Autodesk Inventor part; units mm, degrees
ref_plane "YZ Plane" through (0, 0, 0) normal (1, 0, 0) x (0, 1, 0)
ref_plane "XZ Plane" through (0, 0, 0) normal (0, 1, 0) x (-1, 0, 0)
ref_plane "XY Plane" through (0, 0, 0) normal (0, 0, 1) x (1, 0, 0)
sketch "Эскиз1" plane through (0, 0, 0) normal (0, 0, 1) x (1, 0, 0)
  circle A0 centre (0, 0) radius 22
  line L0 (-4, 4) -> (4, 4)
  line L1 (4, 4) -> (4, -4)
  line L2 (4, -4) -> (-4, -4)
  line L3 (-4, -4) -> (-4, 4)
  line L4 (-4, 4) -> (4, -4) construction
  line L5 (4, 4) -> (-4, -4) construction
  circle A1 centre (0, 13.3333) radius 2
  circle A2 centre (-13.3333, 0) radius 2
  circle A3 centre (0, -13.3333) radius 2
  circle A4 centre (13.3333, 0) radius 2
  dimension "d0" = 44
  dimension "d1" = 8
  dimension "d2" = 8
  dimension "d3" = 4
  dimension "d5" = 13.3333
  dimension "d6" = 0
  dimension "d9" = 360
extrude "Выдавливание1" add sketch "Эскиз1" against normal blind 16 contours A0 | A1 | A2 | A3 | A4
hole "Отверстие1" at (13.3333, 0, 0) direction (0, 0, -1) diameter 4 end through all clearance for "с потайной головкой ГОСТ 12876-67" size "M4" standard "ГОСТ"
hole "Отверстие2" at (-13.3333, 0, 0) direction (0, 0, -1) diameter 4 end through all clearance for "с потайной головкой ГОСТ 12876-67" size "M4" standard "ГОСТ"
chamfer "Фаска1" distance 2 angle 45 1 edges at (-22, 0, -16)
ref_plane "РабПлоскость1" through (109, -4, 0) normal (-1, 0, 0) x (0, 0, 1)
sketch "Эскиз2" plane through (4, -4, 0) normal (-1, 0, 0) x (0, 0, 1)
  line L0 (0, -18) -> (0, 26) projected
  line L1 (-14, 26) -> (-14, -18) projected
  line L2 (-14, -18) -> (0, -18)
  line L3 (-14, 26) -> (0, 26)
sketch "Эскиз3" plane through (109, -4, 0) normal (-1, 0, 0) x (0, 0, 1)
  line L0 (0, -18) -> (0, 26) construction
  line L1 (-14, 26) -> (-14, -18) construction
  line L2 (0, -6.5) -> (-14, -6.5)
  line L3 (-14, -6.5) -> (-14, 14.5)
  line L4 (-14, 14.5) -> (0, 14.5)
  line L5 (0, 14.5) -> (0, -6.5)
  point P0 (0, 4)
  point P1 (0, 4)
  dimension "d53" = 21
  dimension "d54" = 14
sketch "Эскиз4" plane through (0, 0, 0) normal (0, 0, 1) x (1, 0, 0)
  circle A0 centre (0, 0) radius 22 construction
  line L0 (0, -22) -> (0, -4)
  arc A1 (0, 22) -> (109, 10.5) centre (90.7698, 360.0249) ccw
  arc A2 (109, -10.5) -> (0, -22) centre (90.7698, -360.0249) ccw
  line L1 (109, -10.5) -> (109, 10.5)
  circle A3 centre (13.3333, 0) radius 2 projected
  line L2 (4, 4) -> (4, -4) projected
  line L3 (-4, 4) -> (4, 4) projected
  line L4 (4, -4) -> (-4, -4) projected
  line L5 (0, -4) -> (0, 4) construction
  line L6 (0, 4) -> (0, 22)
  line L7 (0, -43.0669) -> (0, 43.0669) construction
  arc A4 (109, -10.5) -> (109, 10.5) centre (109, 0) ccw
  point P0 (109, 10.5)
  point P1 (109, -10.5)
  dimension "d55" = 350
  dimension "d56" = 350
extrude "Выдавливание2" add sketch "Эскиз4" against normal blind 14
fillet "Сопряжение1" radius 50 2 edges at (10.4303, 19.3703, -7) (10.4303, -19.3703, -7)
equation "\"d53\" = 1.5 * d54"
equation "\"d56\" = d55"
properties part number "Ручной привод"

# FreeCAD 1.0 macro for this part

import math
import FreeCAD as App
import Part
import Sketcher
from FreeCAD import Vector


def edges_at(feature, points):
    """Names of the edges that pass closest to the given points."""
    edges = feature.Shape.Edges
    near = lambda p: min(range(len(edges)), key=lambda i: edges[i].distToShape(Part.Vertex(*p))[0])
    return sorted({f"Edge{near(p) + 1}" for p in points})

doc = App.newDocument("Part")
body = doc.addObject("PartDesign::Body", "Body")

# Sketch on XY plane
sketch1 = doc.addObject("Sketcher::SketchObject", "Sketch")
body.addObject(sketch1)
sketch1.AttachmentSupport = (doc.XY_Plane, [""])
sketch1.MapMode = "FlatFace"
sketch1.addGeometry([
    Part.Circle(Vector(0, 0, 0), Vector(0, 0, 1), 22),  # 0
    Part.LineSegment(Vector(-4, -4, 0), Vector(-4, 4, 0)),  # 1
    Part.LineSegment(Vector(-4, 4, 0), Vector(4, 4, 0)),  # 2
    Part.LineSegment(Vector(4, 4, 0), Vector(4, -4, 0)),  # 3
    Part.LineSegment(Vector(4, -4, 0), Vector(-4, -4, 0)),  # 4
], False)
sketch1.addConstraint([
    Sketcher.Constraint("Coincident", 1, 2, 2, 1),
    Sketcher.Constraint("Coincident", 2, 2, 3, 1),
    Sketcher.Constraint("Coincident", 3, 2, 4, 1),
    Sketcher.Constraint("Coincident", 4, 2, 1, 1),
    Sketcher.Constraint("Vertical", 1),
    Sketcher.Constraint("Horizontal", 2),
    Sketcher.Constraint("Vertical", 3),
    Sketcher.Constraint("Horizontal", 4),
    Sketcher.Constraint("Coincident", 0, 3, -1, 1),
    Sketcher.Constraint("Symmetric", 1, 2, 3, 2, -1, 1),
    Sketcher.Constraint("Equal", 4, 1),
    Sketcher.Constraint("Diameter", 0, 44.0),
    Sketcher.Constraint("DistanceX", 2, 1, 2, 2, 8.0),
])
pad1 = doc.addObject("PartDesign::Pad", "Pad")
body.addObject(pad1)
pad1.Profile = sketch1
pad1.Length = 16
pad1.Reversed = True

# Sketch on XY plane
sketch2 = doc.addObject("Sketcher::SketchObject", "Sketch001")
body.addObject(sketch2)
sketch2.AttachmentSupport = (doc.XY_Plane, [""])
sketch2.MapMode = "FlatFace"
sketch2.addGeometry(Part.Circle(Vector(13.3, 0, 0), Vector(0, 0, 1), 2), False)
sketch2.addConstraint([
    Sketcher.Constraint("PointOnObject", 0, 3, -1),
    Sketcher.Constraint("Diameter", 0, 4.0),
    Sketcher.Constraint("DistanceX", -1, 1, 0, 3, 13.3333),
])
doc.recompute()
hole = doc.addObject("PartDesign::Hole", "Hole")
body.addObject(hole)
hole.Profile = sketch2
hole.ThreadType = "None"
hole.Diameter = 4
hole.DepthType = "ThroughAll"

# Sketch on XY plane
sketch3 = doc.addObject("Sketcher::SketchObject", "Sketch002")
body.addObject(sketch3)
sketch3.AttachmentSupport = (doc.XY_Plane, [""])
sketch3.MapMode = "FlatFace"
sketch3.addGeometry(Part.Circle(Vector(-13.3, 0, 0), Vector(0, 0, 1), 2), False)
sketch3.addConstraint([
    Sketcher.Constraint("PointOnObject", 0, 3, -1),
    Sketcher.Constraint("Diameter", 0, 4.0),
    Sketcher.Constraint("DistanceX", 0, 3, -1, 1, 13.3333),
])
doc.recompute()
hole2 = doc.addObject("PartDesign::Hole", "Hole001")
body.addObject(hole2)
hole2.Profile = sketch3
hole2.ThreadType = "None"
hole2.Diameter = 4
hole2.DepthType = "ThroughAll"
doc.recompute()

chamfer = doc.addObject("PartDesign::Chamfer", "Chamfer")
body.addObject(chamfer)
chamfer.Base = (hole2, edges_at(hole2, [(-22, 0, -16)]))
chamfer.Size = 2

# Sketch on XY plane
sketch4 = doc.addObject("Sketcher::SketchObject", "Sketch003")
body.addObject(sketch4)
sketch4.AttachmentSupport = (doc.XY_Plane, [""])
sketch4.MapMode = "FlatFace"
sketch4.addGeometry([
    Part.LineSegment(Vector(0, -4, 0), Vector(0, -22, 0)),  # 0
    Part.ArcOfCircle(Part.Circle(Vector(90.8, -360, 0), Vector(0, 0, 1), 350), math.radians(87.01), math.radians(105.03)),  # 1
    Part.ArcOfCircle(Part.Circle(Vector(109, 0, 0), Vector(0, 0, 1), 10.5), math.radians(-90), math.radians(90)),  # 2
    Part.ArcOfCircle(Part.Circle(Vector(90.8, 360, 0), Vector(0, 0, 1), 350), math.radians(-105.03), math.radians(-87.01)),  # 3
    Part.LineSegment(Vector(0, 22, 0), Vector(0, 4, 0)),  # 4
    Part.LineSegment(Vector(0, 4, 0), Vector(4, 4, 0)),  # 5
    Part.LineSegment(Vector(4, 4, 0), Vector(4, -4, 0)),  # 6
    Part.LineSegment(Vector(4, -4, 0), Vector(0, -4, 0)),  # 7
    Part.Circle(Vector(13.3, 0, 0), Vector(0, 0, 1), 2),  # 8
], False)
sketch4.addConstraint([
    Sketcher.Constraint("Coincident", 0, 2, 1, 2),
    Sketcher.Constraint("Coincident", 1, 1, 2, 1),
    Sketcher.Constraint("Coincident", 2, 2, 3, 2),
    Sketcher.Constraint("Coincident", 3, 1, 4, 1),
    Sketcher.Constraint("Coincident", 4, 2, 5, 1),
    Sketcher.Constraint("Coincident", 5, 2, 6, 1),
    Sketcher.Constraint("Coincident", 6, 2, 7, 1),
    Sketcher.Constraint("Coincident", 7, 2, 0, 1),
    Sketcher.Constraint("Vertical", 0),
    Sketcher.Constraint("Vertical", 4),
    Sketcher.Constraint("Horizontal", 5),
    Sketcher.Constraint("Vertical", 6),
    Sketcher.Constraint("Horizontal", 7),
    Sketcher.Constraint("Equal", 1, 3),
    Sketcher.Constraint("Symmetric", 0, 2, 3, 1, -1, 1),
    Sketcher.Constraint("Symmetric", 1, 3, 3, 3, -1),
    Sketcher.Constraint("PointOnObject", 2, 3, -1),
    Sketcher.Constraint("PointOnObject", 8, 3, -1),
    Sketcher.Constraint("Vertical", 2, 3, 1, 1),
    Sketcher.Constraint("Equal", 0, 4),
    Sketcher.Constraint("Radius", 1, 350.0),
    Sketcher.Constraint("Diameter", 8, 4.0),
    Sketcher.Constraint("Radius", 2, 10.5),
    Sketcher.Constraint("DistanceX", 5, 1, 5, 2, 4.0),
    Sketcher.Constraint("DistanceY", 0, 2, 0, 1, 18.0),
    Sketcher.Constraint("DistanceY", 6, 2, 6, 1, 8.0),
    Sketcher.Constraint("DistanceX", -1, 1, 2, 3, 109.0),
    Sketcher.Constraint("DistanceX", -1, 1, 8, 3, 13.3333),
])
pad2 = doc.addObject("PartDesign::Pad", "Pad001")
body.addObject(pad2)
pad2.Profile = sketch4
pad2.Length = 14
pad2.Reversed = True
doc.recompute()

fillet = doc.addObject("PartDesign::Fillet", "Fillet")
body.addObject(fillet)
fillet.Base = (pad2, edges_at(pad2, [(10.43, 19.37, -7), (10.43, -19.37, -7)]))
fillet.Radius = 50

doc.recompute()
